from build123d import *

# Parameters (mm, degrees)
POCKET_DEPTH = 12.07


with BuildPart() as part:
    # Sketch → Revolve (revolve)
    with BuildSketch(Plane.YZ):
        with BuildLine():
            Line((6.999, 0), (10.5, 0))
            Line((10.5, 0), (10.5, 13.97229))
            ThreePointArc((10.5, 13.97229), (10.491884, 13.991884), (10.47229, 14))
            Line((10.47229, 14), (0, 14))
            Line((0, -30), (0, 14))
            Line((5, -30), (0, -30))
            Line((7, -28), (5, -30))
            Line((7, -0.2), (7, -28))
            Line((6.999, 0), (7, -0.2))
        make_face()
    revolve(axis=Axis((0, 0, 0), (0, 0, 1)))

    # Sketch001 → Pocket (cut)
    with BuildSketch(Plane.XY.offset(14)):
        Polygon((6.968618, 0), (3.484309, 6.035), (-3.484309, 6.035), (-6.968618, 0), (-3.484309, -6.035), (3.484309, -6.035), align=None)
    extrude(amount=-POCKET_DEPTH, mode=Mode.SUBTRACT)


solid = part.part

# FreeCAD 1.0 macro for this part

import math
import FreeCAD as App
import Part
import Sketcher
from FreeCAD import Vector
Q = App.Units.Quantity


def add_polygon(sketch, points):
    """Adds a closed chain of lines whose ends are joined by coincident constraints."""
    first, n = sketch.GeometryCount, len(points)
    for a, b in zip(points, points[1:] + points[:1]):
        sketch.addGeometry(Part.LineSegment(App.Vector(*a, 0), App.Vector(*b, 0)), False)
    for i in range(n):
        sketch.addConstraint(Sketcher.Constraint("Coincident", first + i, 2, first + (i + 1) % n, 1))

doc = App.newDocument("Part")
params = doc.addObject("Spreadsheet::Sheet", "Params")
for row, (alias, value) in enumerate([
    ("sketch1_width", "5 mm"),
    ("sketch1_height", "44 mm"),
    ("sketch1_height2", "27.8 mm"),
    ("revolution_angle", "360 deg"),
    ("pocket1_length", "12.07 mm"),
], start=1):
    params.set(f"A{row}", alias)
    params.set(f"B{row}", "=" + value)
    params.setAlias(f"B{row}", alias)

body = doc.addObject("PartDesign::Body", "Body")

# Sketch on YZ plane
sketch1 = body.newObject("Sketcher::SketchObject", "Sketch")
sketch1.AttachmentSupport = (doc.getObject("YZ_Plane"), [""])
sketch1.MapMode = "FlatFace"
sketch1.addGeometry([
    Part.LineSegment(Vector(6.999, 0, 0), Vector(10.5, 0, 0)),  # 0
    Part.LineSegment(Vector(10.5, 0, 0), Vector(10.5, 13.97229, 0)),  # 1
    Part.ArcOfCircle(Part.Circle(Vector(10.47229, 13.97229, 0), Vector(0, 0, 1), 0.02771), math.radians(-0.000502), math.radians(90.000502)),  # 2
    Part.LineSegment(Vector(10.47229, 14, 0), Vector(0, 14, 0)),  # 3
    Part.LineSegment(Vector(0, 14, 0), Vector(0, -30, 0)),  # 4
    Part.LineSegment(Vector(0, -30, 0), Vector(5, -30, 0)),  # 5
    Part.LineSegment(Vector(5, -30, 0), Vector(7, -28, 0)),  # 6
    Part.LineSegment(Vector(7, -28, 0), Vector(7, -0.2, 0)),  # 7
    Part.LineSegment(Vector(7, -0.2, 0), Vector(6.999, 0, 0)),  # 8
], False)
sketch1.addConstraint([
    Sketcher.Constraint("Coincident", 0, 2, 1, 1),
    Sketcher.Constraint("Coincident", 1, 2, 2, 1),
    Sketcher.Constraint("Coincident", 2, 2, 3, 1),
    Sketcher.Constraint("Coincident", 3, 2, 4, 1),
    Sketcher.Constraint("Coincident", 4, 2, 5, 1),
    Sketcher.Constraint("Coincident", 5, 2, 6, 1),
    Sketcher.Constraint("Coincident", 6, 2, 7, 1),
    Sketcher.Constraint("Coincident", 7, 2, 8, 1),
    Sketcher.Constraint("Coincident", 8, 2, 0, 1),
    Sketcher.Constraint("Horizontal", 0),
    Sketcher.Constraint("Vertical", 1),
    Sketcher.Constraint("Horizontal", 3),
    Sketcher.Constraint("Vertical", 4),
    Sketcher.Constraint("Horizontal", 5),
    Sketcher.Constraint("Vertical", 7),
    Sketcher.Constraint("PointOnObject", 0, 2, -1),
    Sketcher.Constraint("PointOnObject", 3, 2, -2),
    Sketcher.Constraint("Horizontal", 2, 3, 1, 2),
    Sketcher.Constraint("DistanceX", 5, 1, 5, 2, 5.0),
    Sketcher.Constraint("DistanceY", 4, 2, 4, 1, 44.0),
    Sketcher.Constraint("Angle", 6, Q("45 deg")),
    Sketcher.Constraint("DistanceY", 7, 1, 7, 2, 27.8),
    Sketcher.Constraint("DistanceY", -1, 1, 2, 2, 14.0),
    Sketcher.Constraint("DistanceX", -1, 1, 6, 2, 7.0),
    Sketcher.Constraint("DistanceX", -1, 1, 0, 2, 10.5),
    Sketcher.Constraint("DistanceX", 0, 1, 0, 2, 3.501),
    Sketcher.Constraint("Radius", 2, 0.02771),
    Sketcher.Constraint("DistanceX", 3, 2, 3, 1, 10.47229),
])
sketch1.setExpression("Constraints[18]", "Params.sketch1_width")
sketch1.setExpression("Constraints[19]", "Params.sketch1_height")
sketch1.setExpression("Constraints[21]", "Params.sketch1_height2")
revolution = body.newObject("PartDesign::Revolution", "Revolution")
revolution.Profile = sketch1
revolution.ReferenceAxis = (sketch1, ["V_Axis"])
revolution.setExpression("Angle", "Params.revolution_angle")

# Sketch on XY plane
sketch2 = body.newObject("Sketcher::SketchObject", "Sketch001")
sketch2.AttachmentSupport = (doc.getObject("XY_Plane"), [""])
sketch2.MapMode = "FlatFace"
sketch2.AttachmentOffset = App.Placement(Vector(0, 0, 14), App.Rotation())
add_polygon(sketch2, [(6.968618, 0), (3.484309, 6.035), (-3.484309, 6.035), (-6.968618, 0), (-3.484309, -6.035), (3.484309, -6.035)])  # lines 0-5
sketch2.addConstraint([
    Sketcher.Constraint("Horizontal", 1),
    Sketcher.Constraint("Horizontal", 4),
    Sketcher.Constraint("Symmetric", 0, 2, 3, 2, -1, 1),
    Sketcher.Constraint("Symmetric", 2, 2, 5, 2, -1, 1),
    Sketcher.Constraint("PointOnObject", 2, 2, -1),
    Sketcher.Constraint("Parallel", 2, 5),
    Sketcher.Constraint("Vertical", 1, 2, 3, 2),
    Sketcher.Constraint("Angle", 0, Q("120.000001 deg")),
    Sketcher.Constraint("DistanceY", 3, 2, 1, 2, 12.07),
    Sketcher.Constraint("DistanceX", 1, 2, 1, 1, 6.968618),
])
pocket1 = body.newObject("PartDesign::Pocket", "Pocket")
pocket1.Profile = sketch2
pocket1.setExpression("Length", "Params.pocket1_length")

doc.recompute()
